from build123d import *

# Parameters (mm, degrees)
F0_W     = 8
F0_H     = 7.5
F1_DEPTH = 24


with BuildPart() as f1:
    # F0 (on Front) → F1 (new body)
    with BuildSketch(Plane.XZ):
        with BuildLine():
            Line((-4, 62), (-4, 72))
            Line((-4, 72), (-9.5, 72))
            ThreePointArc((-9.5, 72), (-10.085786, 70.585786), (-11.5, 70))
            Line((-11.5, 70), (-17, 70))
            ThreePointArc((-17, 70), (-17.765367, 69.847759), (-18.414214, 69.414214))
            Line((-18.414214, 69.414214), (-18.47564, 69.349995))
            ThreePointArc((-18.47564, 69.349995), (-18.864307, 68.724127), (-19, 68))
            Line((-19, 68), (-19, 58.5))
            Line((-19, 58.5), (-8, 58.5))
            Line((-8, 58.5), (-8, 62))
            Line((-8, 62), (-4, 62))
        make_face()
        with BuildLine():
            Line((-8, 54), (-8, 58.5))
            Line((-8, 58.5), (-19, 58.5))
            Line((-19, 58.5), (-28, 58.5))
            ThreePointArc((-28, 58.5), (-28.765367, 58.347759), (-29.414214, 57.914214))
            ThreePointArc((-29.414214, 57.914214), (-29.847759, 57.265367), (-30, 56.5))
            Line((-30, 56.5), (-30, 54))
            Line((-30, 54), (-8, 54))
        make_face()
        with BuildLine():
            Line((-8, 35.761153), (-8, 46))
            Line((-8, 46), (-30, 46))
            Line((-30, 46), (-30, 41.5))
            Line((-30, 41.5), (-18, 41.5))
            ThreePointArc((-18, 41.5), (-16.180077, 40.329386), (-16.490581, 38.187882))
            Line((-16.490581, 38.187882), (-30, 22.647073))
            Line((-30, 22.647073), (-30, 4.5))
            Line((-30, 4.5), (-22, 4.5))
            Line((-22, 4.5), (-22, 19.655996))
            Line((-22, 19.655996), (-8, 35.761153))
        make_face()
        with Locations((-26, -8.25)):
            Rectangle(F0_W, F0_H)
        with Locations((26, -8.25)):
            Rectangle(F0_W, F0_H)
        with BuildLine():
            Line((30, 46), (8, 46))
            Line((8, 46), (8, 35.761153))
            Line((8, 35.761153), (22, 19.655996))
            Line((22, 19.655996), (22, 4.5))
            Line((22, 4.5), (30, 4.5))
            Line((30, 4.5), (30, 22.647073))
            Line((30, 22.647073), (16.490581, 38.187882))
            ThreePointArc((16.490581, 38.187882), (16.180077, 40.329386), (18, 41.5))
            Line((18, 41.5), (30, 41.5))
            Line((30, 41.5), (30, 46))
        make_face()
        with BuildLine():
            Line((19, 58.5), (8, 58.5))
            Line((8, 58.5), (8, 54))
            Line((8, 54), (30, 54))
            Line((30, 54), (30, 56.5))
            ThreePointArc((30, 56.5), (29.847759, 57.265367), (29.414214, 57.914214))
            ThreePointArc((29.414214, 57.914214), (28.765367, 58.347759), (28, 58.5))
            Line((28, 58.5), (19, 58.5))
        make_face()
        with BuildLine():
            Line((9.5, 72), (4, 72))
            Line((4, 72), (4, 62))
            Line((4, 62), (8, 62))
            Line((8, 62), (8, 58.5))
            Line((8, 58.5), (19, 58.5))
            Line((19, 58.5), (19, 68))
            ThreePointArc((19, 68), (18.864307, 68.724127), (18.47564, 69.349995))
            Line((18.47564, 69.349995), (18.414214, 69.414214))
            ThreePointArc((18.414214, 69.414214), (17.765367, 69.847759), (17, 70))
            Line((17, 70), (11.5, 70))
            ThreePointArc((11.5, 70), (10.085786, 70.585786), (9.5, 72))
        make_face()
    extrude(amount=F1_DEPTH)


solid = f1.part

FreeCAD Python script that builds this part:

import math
import FreeCAD as App
import Part
import Sketcher

V = App.Vector
Q = App.Units.Quantity


def add_polygon(sketch, points):
    """Adds a closed chain of lines whose ends are joined by coincident constraints."""
    first, n = sketch.GeometryCount, len(points)
    for a, b in zip(points, points[1:] + points[:1]):
        sketch.addGeometry(Part.LineSegment(App.Vector(*a, 0), App.Vector(*b, 0)), False)
    for i in range(n):
        sketch.addConstraint(Sketcher.Constraint("Coincident", first + i, 2, first + (i + 1) % n, 1))

doc = App.newDocument("Part")
body = doc.addObject("PartDesign::Body", "Body")
body.AllowCompound = True

sketch1 = body.newObject("Sketcher::SketchObject", "Sketch")
sketch1.AttachmentSupport = (doc.getObject("XZ_Plane"), [""])
sketch1.MapMode = "FlatFace"
sketch1.addGeometry(Part.LineSegment(V(-4, 62, 0), V(-4, 72, 0)), False)
sketch1.addGeometry(Part.LineSegment(V(-4, 72, 0), V(-9.5, 72, 0)), False)
sketch1.addGeometry(Part.ArcOfCircle(Part.Circle(V(-11.5, 72, 0), V(0, 0, 1), 2), math.radians(-90), math.radians(0)), False)
sketch1.addGeometry(Part.LineSegment(V(-11.5, 70, 0), V(-17, 70, 0)), False)
sketch1.addGeometry(Part.ArcOfCircle(Part.Circle(V(-17, 68, 0), V(0, 0, 1), 2), math.radians(90), math.radians(135)), False)
sketch1.addGeometry(Part.LineSegment(V(-18.41, 69.41, 0), V(-18.48, 69.35, 0)), False)
sketch1.addGeometry(Part.ArcOfCircle(Part.Circle(V(-17, 68, 0), V(0, 0, 1), 2), math.radians(138), math.radians(180)), False)
sketch1.addGeometry(Part.LineSegment(V(-19, 68, 0), V(-19, 58.5, 0)), False)
sketch1.addGeometry(Part.LineSegment(V(-19, 58.5, 0), V(-28, 58.5, 0)), False)
sketch1.addGeometry(Part.ArcOfCircle(Part.Circle(V(-28, 56.5, 0), V(0, 0, 1), 2), math.radians(90), math.radians(135)), False)
sketch1.addGeometry(Part.ArcOfCircle(Part.Circle(V(-28, 56.5, 0), V(0, 0, 1), 2), math.radians(135), math.radians(180)), False)
sketch1.addGeometry(Part.LineSegment(V(-30, 56.5, 0), V(-30, 54, 0)), False)
sketch1.addGeometry(Part.LineSegment(V(-30, 54, 0), V(-8, 54, 0)), False)
sketch1.addGeometry(Part.LineSegment(V(-8, 54, 0), V(-8, 62, 0)), False)
sketch1.addGeometry(Part.LineSegment(V(-8, 62, 0), V(-4, 62, 0)), False)
sketch1.addGeometry(Part.LineSegment(V(-8, 35.76, 0), V(-8, 46, 0)), False)
sketch1.addGeometry(Part.LineSegment(V(-8, 46, 0), V(-30, 46, 0)), False)
sketch1.addGeometry(Part.LineSegment(V(-30, 46, 0), V(-30, 41.5, 0)), False)
sketch1.addGeometry(Part.LineSegment(V(-30, 41.5, 0), V(-18, 41.5, 0)), False)
sketch1.addGeometry(Part.ArcOfCircle(Part.Circle(V(-18, 39.5, 0), V(0, 0, 1), 2), math.radians(-41), math.radians(90)), False)
sketch1.addGeometry(Part.LineSegment(V(-16.49, 38.19, 0), V(-30, 22.65, 0)), False)
sketch1.addGeometry(Part.LineSegment(V(-30, 22.65, 0), V(-30, 4.5, 0)), False)
sketch1.addGeometry(Part.LineSegment(V(-30, 4.5, 0), V(-22, 4.5, 0)), False)
sketch1.addGeometry(Part.LineSegment(V(-22, 4.5, 0), V(-22, 19.66, 0)), False)
sketch1.addGeometry(Part.LineSegment(V(-22, 19.66, 0), V(-8, 35.76, 0)), False)
add_polygon(sketch1, [(-30, -4.5), (-30, -12), (-22, -12), (-22, -4.5)])
add_polygon(sketch1, [(22, -4.5), (22, -12), (30, -12), (30, -4.5)])
sketch1.addGeometry(Part.LineSegment(V(30, 46, 0), V(8, 46, 0)), False)
sketch1.addGeometry(Part.LineSegment(V(8, 46, 0), V(8, 35.76, 0)), False)
sketch1.addGeometry(Part.LineSegment(V(8, 35.76, 0), V(22, 19.66, 0)), False)
sketch1.addGeometry(Part.LineSegment(V(22, 19.66, 0), V(22, 4.5, 0)), False)
sketch1.addGeometry(Part.LineSegment(V(22, 4.5, 0), V(30, 4.5, 0)), False)
sketch1.addGeometry(Part.LineSegment(V(30, 4.5, 0), V(30, 22.65, 0)), False)
sketch1.addGeometry(Part.LineSegment(V(30, 22.65, 0), V(16.49, 38.19, 0)), False)
sketch1.addGeometry(Part.ArcOfCircle(Part.Circle(V(18, 39.5, 0), V(0, 0, 1), 2), math.radians(90), math.radians(221)), False)
sketch1.addGeometry(Part.LineSegment(V(18, 41.5, 0), V(30, 41.5, 0)), False)
sketch1.addGeometry(Part.LineSegment(V(30, 41.5, 0), V(30, 46, 0)), False)
sketch1.addGeometry(Part.LineSegment(V(8, 54, 0), V(30, 54, 0)), False)
sketch1.addGeometry(Part.LineSegment(V(30, 54, 0), V(30, 56.5, 0)), False)
sketch1.addGeometry(Part.ArcOfCircle(Part.Circle(V(28, 56.5, 0), V(0, 0, 1), 2), math.radians(0), math.radians(45)), False)
sketch1.addGeometry(Part.ArcOfCircle(Part.Circle(V(28, 56.5, 0), V(0, 0, 1), 2), math.radians(45), math.radians(90)), False)
sketch1.addGeometry(Part.LineSegment(V(28, 58.5, 0), V(19, 58.5, 0)), False)
sketch1.addGeometry(Part.LineSegment(V(19, 58.5, 0), V(19, 68, 0)), False)
sketch1.addGeometry(Part.ArcOfCircle(Part.Circle(V(17, 68, 0), V(0, 0, 1), 2), math.radians(0), math.radians(42)), False)
sketch1.addGeometry(Part.LineSegment(V(18.48, 69.35, 0), V(18.41, 69.41, 0)), False)
sketch1.addGeometry(Part.ArcOfCircle(Part.Circle(V(17, 68, 0), V(0, 0, 1), 2), math.radians(45), math.radians(90)), False)
sketch1.addGeometry(Part.LineSegment(V(17, 70, 0), V(11.5, 70, 0)), False)
sketch1.addGeometry(Part.ArcOfCircle(Part.Circle(V(11.5, 72, 0), V(0, 0, 1), 2), math.radians(180), math.radians(270)), False)
sketch1.addGeometry(Part.LineSegment(V(9.5, 72, 0), V(4, 72, 0)), False)
sketch1.addGeometry(Part.LineSegment(V(4, 72, 0), V(4, 62, 0)), False)
sketch1.addGeometry(Part.LineSegment(V(4, 62, 0), V(8, 62, 0)), False)
sketch1.addGeometry(Part.LineSegment(V(8, 62, 0), V(8, 54, 0)), False)
sketch1.addConstraint(Sketcher.Constraint("Coincident", 0, 2, 1, 1))
sketch1.addConstraint(Sketcher.Constraint("Coincident", 1, 2, 2, 2))
sketch1.addConstraint(Sketcher.Constraint("Tangent", 2, 1, 3, 1))
sketch1.addConstraint(Sketcher.Constraint("Tangent", 3, 2, 4, 1))
sketch1.addConstraint(Sketcher.Constraint("Coincident", 4, 2, 5, 1))
sketch1.addConstraint(Sketcher.Constraint("Coincident", 5, 2, 6, 1))
sketch1.addConstraint(Sketcher.Constraint("Tangent", 6, 2, 7, 1))
sketch1.addConstraint(Sketcher.Constraint("Coincident", 7, 2, 8, 1))
sketch1.addConstraint(Sketcher.Constraint("Tangent", 8, 2, 9, 1))
sketch1.addConstraint(Sketcher.Constraint("Coincident", 9, 2, 10, 1))
sketch1.addConstraint(Sketcher.Constraint("Tangent", 10, 2, 11, 1))
sketch1.addConstraint(Sketcher.Constraint("Coincident", 11, 2, 12, 1))
sketch1.addConstraint(Sketcher.Constraint("Coincident", 12, 2, 13, 1))
sketch1.addConstraint(Sketcher.Constraint("Coincident", 13, 2, 14, 1))
sketch1.addConstraint(Sketcher.Constraint("Coincident", 14, 2, 0, 1))
sketch1.addConstraint(Sketcher.Constraint("Coincident", 15, 2, 16, 1))
sketch1.addConstraint(Sketcher.Constraint("Coincident", 16, 2, 17, 1))
sketch1.addConstraint(Sketcher.Constraint("Coincident", 17, 2, 18, 1))
sketch1.addConstraint(Sketcher.Constraint("Tangent", 18, 2, 19, 2))
sketch1.addConstraint(Sketcher.Constraint("Tangent", 19, 1, 20, 1))
sketch1.addConstraint(Sketcher.Constraint("Coincident", 20, 2, 21, 1))
sketch1.addConstraint(Sketcher.Constraint("Coincident", 21, 2, 22, 1))
sketch1.addConstraint(Sketcher.Constraint("Coincident", 22, 2, 23, 1))
sketch1.addConstraint(Sketcher.Constraint("Coincident", 23, 2, 24, 1))
sketch1.addConstraint(Sketcher.Constraint("Coincident", 24, 2, 15, 1))
sketch1.addConstraint(Sketcher.Constraint("Coincident", 33, 2, 34, 1))
sketch1.addConstraint(Sketcher.Constraint("Coincident", 34, 2, 35, 1))
sketch1.addConstraint(Sketcher.Constraint("Coincident", 35, 2, 36, 1))
sketch1.addConstraint(Sketcher.Constraint("Coincident", 36, 2, 37, 1))
sketch1.addConstraint(Sketcher.Constraint("Coincident", 37, 2, 38, 1))
sketch1.addConstraint(Sketcher.Constraint("Coincident", 38, 2, 39, 1))
sketch1.addConstraint(Sketcher.Constraint("Tangent", 39, 2, 40, 2))
sketch1.addConstraint(Sketcher.Constraint("Tangent", 40, 1, 41, 1))
sketch1.addConstraint(Sketcher.Constraint("Coincident", 41, 2, 42, 1))
sketch1.addConstraint(Sketcher.Constraint("Coincident", 42, 2, 33, 1))
sketch1.addConstraint(Sketcher.Constraint("Coincident", 43, 2, 44, 1))
sketch1.addConstraint(Sketcher.Constraint("Tangent", 44, 2, 45, 1))
sketch1.addConstraint(Sketcher.Constraint("Coincident", 45, 2, 46, 1))
sketch1.addConstraint(Sketcher.Constraint("Tangent", 46, 2, 47, 1))
sketch1.addConstraint(Sketcher.Constraint("Coincident", 47, 2, 48, 1))
sketch1.addConstraint(Sketcher.Constraint("Tangent", 48, 2, 49, 1))
sketch1.addConstraint(Sketcher.Constraint("Coincident", 49, 2, 50, 1))
sketch1.addConstraint(Sketcher.Constraint("Coincident", 50, 2, 51, 1))
sketch1.addConstraint(Sketcher.Constraint("Tangent", 51, 2, 52, 1))
sketch1.addConstraint(Sketcher.Constraint("Tangent", 52, 2, 53, 2))
sketch1.addConstraint(Sketcher.Constraint("Coincident", 53, 1, 54, 1))
sketch1.addConstraint(Sketcher.Constraint("Coincident", 54, 2, 55, 1))
sketch1.addConstraint(Sketcher.Constraint("Coincident", 55, 2, 56, 1))
sketch1.addConstraint(Sketcher.Constraint("Coincident", 56, 2, 57, 1))
sketch1.addConstraint(Sketcher.Constraint("Coincident", 57, 2, 43, 1))
sketch1.addConstraint(Sketcher.Constraint("Vertical", 0))
sketch1.addConstraint(Sketcher.Constraint("Horizontal", 1))
sketch1.addConstraint(Sketcher.Constraint("Horizontal", 3))
sketch1.addConstraint(Sketcher.Constraint("Vertical", 7))
sketch1.addConstraint(Sketcher.Constraint("Horizontal", 8))
sketch1.addConstraint(Sketcher.Constraint("Vertical", 11))
sketch1.addConstraint(Sketcher.Constraint("Horizontal", 12))
sketch1.addConstraint(Sketcher.Constraint("Vertical", 13))
sketch1.addConstraint(Sketcher.Constraint("Horizontal", 14))
sketch1.addConstraint(Sketcher.Constraint("Vertical", 15))
sketch1.addConstraint(Sketcher.Constraint("Horizontal", 16))
sketch1.addConstraint(Sketcher.Constraint("Vertical", 17))
sketch1.addConstraint(Sketcher.Constraint("Horizontal", 18))
sketch1.addConstraint(Sketcher.Constraint("Vertical", 21))
sketch1.addConstraint(Sketcher.Constraint("Horizontal", 22))
sketch1.addConstraint(Sketcher.Constraint("Vertical", 23))
sketch1.addConstraint(Sketcher.Constraint("Vertical", 25))
sketch1.addConstraint(Sketcher.Constraint("Horizontal", 26))
sketch1.addConstraint(Sketcher.Constraint("Vertical", 27))
sketch1.addConstraint(Sketcher.Constraint("Horizontal", 28))
sketch1.addConstraint(Sketcher.Constraint("Vertical", 29))
sketch1.addConstraint(Sketcher.Constraint("Horizontal", 30))
sketch1.addConstraint(Sketcher.Constraint("Vertical", 31))
sketch1.addConstraint(Sketcher.Constraint("Horizontal", 32))
sketch1.addConstraint(Sketcher.Constraint("Horizontal", 33))
sketch1.addConstraint(Sketcher.Constraint("Vertical", 34))
sketch1.addConstraint(Sketcher.Constraint("Vertical", 36))
sketch1.addConstraint(Sketcher.Constraint("Horizontal", 37))
sketch1.addConstraint(Sketcher.Constraint("Vertical", 38))
sketch1.addConstraint(Sketcher.Constraint("Horizontal", 41))
sketch1.addConstraint(Sketcher.Constraint("Vertical", 42))
sketch1.addConstraint(Sketcher.Constraint("Horizontal", 43))
sketch1.addConstraint(Sketcher.Constraint("Vertical", 44))
sketch1.addConstraint(Sketcher.Constraint("Horizontal", 47))
sketch1.addConstraint(Sketcher.Constraint("Vertical", 48))
sketch1.addConstraint(Sketcher.Constraint("Horizontal", 52))
sketch1.addConstraint(Sketcher.Constraint("Horizontal", 54))
sketch1.addConstraint(Sketcher.Constraint("Vertical", 55))
sketch1.addConstraint(Sketcher.Constraint("Horizontal", 56))
sketch1.addConstraint(Sketcher.Constraint("Vertical", 57))
sketch1.addConstraint(Sketcher.Constraint("Coincident", 6, 3, 4, 3))
sketch1.addConstraint(Sketcher.Constraint("Coincident", 10, 3, 9, 3))
sketch1.addConstraint(Sketcher.Constraint("Coincident", 46, 3, 45, 3))
sketch1.addConstraint(Sketcher.Constraint("Coincident", 51, 3, 49, 3))
sketch1.addConstraint(Sketcher.Constraint("Equal", 2, 6))
sketch1.addConstraint(Sketcher.Constraint("Equal", 4, 9))
sketch1.addConstraint(Sketcher.Constraint("Equal", 6, 19))
sketch1.addConstraint(Sketcher.Constraint("Equal", 19, 40))
sketch1.addConstraint(Sketcher.Constraint("Equal", 10, 45))
sketch1.addConstraint(Sketcher.Constraint("Equal", 40, 49))
sketch1.addConstraint(Sketcher.Constraint("Equal", 46, 51))
sketch1.addConstraint(Sketcher.Constraint("Equal", 49, 53))
sketch1.addConstraint(Sketcher.Constraint("Symmetric", 21, 2, 31, 2, -1, 1))
sketch1.addConstraint(Sketcher.Constraint("Symmetric", 27, 2, 36, 2, -1, 1))
sketch1.addConstraint(Sketcher.Constraint("Symmetric", 19, 3, 40, 3, -2))
sketch1.addConstraint(Sketcher.Constraint("Symmetric", 9, 3, 45, 3, -2))
sketch1.addConstraint(Sketcher.Constraint("Symmetric", 4, 3, 49, 3, -2))
sketch1.addConstraint(Sketcher.Constraint("Symmetric", 26, 2, 29, 2, -2))
sketch1.addConstraint(Sketcher.Constraint("Symmetric", 28, 2, 31, 2, -2))
sketch1.addConstraint(Sketcher.Constraint("Symmetric", 15, 2, 33, 2, -2))
sketch1.addConstraint(Sketcher.Constraint("Symmetric", 23, 2, 35, 2, -2))
sketch1.addConstraint(Sketcher.Constraint("Symmetric", 20, 2, 38, 2, -2))
sketch1.addConstraint(Sketcher.Constraint("Symmetric", 1, 2, 53, 1, -2))
sketch1.addConstraint(Sketcher.Constraint("Symmetric", 14, 2, 55, 2, -2))
sketch1.addConstraint(Sketcher.Constraint("Symmetric", 12, 2, 57, 2, -2))
sketch1.addConstraint(Sketcher.Constraint("Parallel", 20, 24))
sketch1.addConstraint(Sketcher.Constraint("Parallel", 35, 39))
sketch1.addConstraint(Sketcher.Constraint("Horizontal", 53, 3, 0, 2))
sketch1.addConstraint(Sketcher.Constraint("Horizontal", 9, 2, 45, 2))
sketch1.addConstraint(Sketcher.Constraint("Horizontal", 5, 2, 49, 2))
sketch1.addConstraint(Sketcher.Constraint("Horizontal", 4, 2, 50, 2))
sketch1.addConstraint(Sketcher.Constraint("Vertical", 13, 2, 15, 2))
sketch1.addConstraint(Sketcher.Constraint("Vertical", 11, 2, 16, 2))
sketch1.addConstraint(Sketcher.Constraint("Vertical", 17, 2, 20, 2))
sketch1.addConstraint(Sketcher.Constraint("Vertical", 38, 2, 41, 2))
sketch1.addConstraint(Sketcher.Constraint("Equal", 1, 3))
sketch1.addConstraint(Sketcher.Constraint("Equal", 37, 13))
sketch1.addConstraint(Sketcher.Constraint("Radius", 2, 1.999999))
sketch1.addConstraint(Sketcher.Constraint("DistanceX", 8, 2, 8, 1, 9.0))
sketch1.addConstraint(Sketcher.Constraint("DistanceX", 12, 1, 12, 2, 22.0))
sketch1.addConstraint(Sketcher.Constraint("DistanceX", 14, 1, 14, 2, 4.0))
sketch1.addConstraint(Sketcher.Constraint("DistanceX", 18, 1, 18, 2, 12.0))
sketch1.addConstraint(Sketcher.Constraint("DistanceX", 22, 1, 22, 2, 8.0))
sketch1.addConstraint(Sketcher.Constraint("DistanceY", 0, 1, 0, 2, 10.0))
sketch1.addConstraint(Sketcher.Constraint("Angle", 20, Q("-131 deg")))
sketch1.addConstraint(Sketcher.Constraint("DistanceX", 1, 2, 1, 1, 5.5))
sketch1.addConstraint(Sketcher.Constraint("DistanceY", 7, 2, 7, 1, 9.5))
sketch1.addConstraint(Sketcher.Constraint("DistanceY", 17, 2, 17, 1, 4.5))
sketch1.addConstraint(Sketcher.Constraint("DistanceY", 25, 2, 25, 1, 7.5))
sketch1.addConstraint(Sketcher.Constraint("DistanceY", -1, 1, 2, 3, 71.999999))
sketch1.addConstraint(Sketcher.Constraint("DistanceX", 4, 3, -1, 1, 16.999999))
sketch1.addConstraint(Sketcher.Constraint("DistanceY", -1, 1, 15, 2, 46.0))
sketch1.addConstraint(Sketcher.Constraint("DistanceY", 25, 2, -1, 1, 12.0))
sketch1.addConstraint(Sketcher.Constraint("DistanceY", 15, 1, 15, 2, 10.238847))
sketch1.addConstraint(Sketcher.Constraint("DistanceX", 5, 2, -1, 1, 18.47564))
sketch1.addConstraint(Sketcher.Constraint("Distance", 5, 0.088866))
sketch1.addConstraint(Sketcher.Constraint("DistanceX", 9, 2, -1, 1, 29.414214))
pad1 = body.newObject("PartDesign::Pad", "Pad")
pad1.Profile = sketch1
pad1.Length = 24

doc.recompute()
